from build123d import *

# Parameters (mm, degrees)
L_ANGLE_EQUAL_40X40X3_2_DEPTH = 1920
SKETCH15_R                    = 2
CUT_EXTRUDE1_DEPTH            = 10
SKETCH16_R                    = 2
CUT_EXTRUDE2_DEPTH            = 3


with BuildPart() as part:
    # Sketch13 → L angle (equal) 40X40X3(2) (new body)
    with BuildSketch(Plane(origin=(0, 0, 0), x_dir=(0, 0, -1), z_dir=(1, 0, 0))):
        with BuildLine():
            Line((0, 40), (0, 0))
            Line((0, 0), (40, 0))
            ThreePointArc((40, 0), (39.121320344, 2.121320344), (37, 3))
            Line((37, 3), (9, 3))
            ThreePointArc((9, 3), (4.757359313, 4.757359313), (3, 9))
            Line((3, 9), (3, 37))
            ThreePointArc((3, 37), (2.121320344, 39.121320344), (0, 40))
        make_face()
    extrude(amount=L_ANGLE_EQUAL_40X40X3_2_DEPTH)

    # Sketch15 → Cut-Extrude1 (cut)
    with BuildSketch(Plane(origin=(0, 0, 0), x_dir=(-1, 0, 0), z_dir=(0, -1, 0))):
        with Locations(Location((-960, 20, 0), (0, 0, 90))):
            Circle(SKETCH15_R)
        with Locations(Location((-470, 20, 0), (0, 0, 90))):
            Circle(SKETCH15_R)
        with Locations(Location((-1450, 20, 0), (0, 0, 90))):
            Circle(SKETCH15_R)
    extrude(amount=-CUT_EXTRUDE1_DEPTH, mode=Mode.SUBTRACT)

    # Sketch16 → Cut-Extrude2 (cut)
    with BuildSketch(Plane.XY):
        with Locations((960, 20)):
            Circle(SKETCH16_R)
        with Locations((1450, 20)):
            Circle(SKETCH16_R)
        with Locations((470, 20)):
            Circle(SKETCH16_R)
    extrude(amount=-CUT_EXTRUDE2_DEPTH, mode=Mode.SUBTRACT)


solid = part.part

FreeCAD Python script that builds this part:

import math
import FreeCAD as App
import Part
import Sketcher

V = App.Vector
Q = App.Units.Quantity

doc = App.newDocument("Part")
body = doc.addObject("PartDesign::Body", "Body")

# Sketch on YZ plane
sketch1 = body.newObject("Sketcher::SketchObject", "Sketch")
sketch1.AttachmentSupport = (doc.getObject("YZ_Plane"), [""])
sketch1.MapMode = "FlatFace"
sketch1.addGeometry([
    Part.LineSegment(V(40, 0, 0), V(0, 0, 0)),  # 0
    Part.LineSegment(V(0, 0, 0), V(0, -40, 0)),  # 1
    Part.ArcOfCircle(Part.Circle(V(0, -37, 0), V(0, 0, 1), 3), math.radians(-90), math.radians(0)),  # 2
    Part.LineSegment(V(3, -37, 0), V(3, -9, 0)),  # 3
    Part.ArcOfCircle(Part.Circle(V(9, -9, 0), V(0, 0, 1), 6), math.radians(90), math.radians(180)),  # 4
    Part.LineSegment(V(9, -3, 0), V(37, -3, 0)),  # 5
    Part.ArcOfCircle(Part.Circle(V(37, 0, 0), V(0, 0, 1), 3), math.radians(-90), math.radians(0)),  # 6
], False)
sketch1.addConstraint([
    Sketcher.Constraint("Coincident", 0, 2, 1, 1),
    Sketcher.Constraint("Coincident", 1, 2, 2, 1),
    Sketcher.Constraint("Tangent", 2, 2, 3, 1),
    Sketcher.Constraint("Tangent", 3, 2, 4, 2),
    Sketcher.Constraint("Tangent", 4, 1, 5, 1),
    Sketcher.Constraint("Tangent", 5, 2, 6, 1),
    Sketcher.Constraint("Coincident", 6, 2, 0, 1),
    Sketcher.Constraint("Horizontal", 0),
    Sketcher.Constraint("Vertical", 1),
    Sketcher.Constraint("Vertical", 3),
    Sketcher.Constraint("Horizontal", 5),
    Sketcher.Constraint("Coincident", 0, 2, -1, 1),
    Sketcher.Constraint("Equal", 2, 6),
    Sketcher.Constraint("PointOnObject", 2, 3, -2),
    Sketcher.Constraint("PointOnObject", 6, 3, -1),
    Sketcher.Constraint("Equal", 0, 1),
    Sketcher.Constraint("Radius", 2, Q("3 mm")),
    Sketcher.Constraint("Radius", 4, Q("6 mm")),
    Sketcher.Constraint("DistanceX", 0, 2, 0, 1, Q("40 mm")),
])
pad1 = body.newObject("PartDesign::Pad", "Pad")
pad1.Profile = sketch1
pad1.Length = 1920

# Sketch on XZ plane
sketch2 = body.newObject("Sketcher::SketchObject", "Sketch001")
sketch2.AttachmentSupport = (doc.getObject("XZ_Plane"), [""])
sketch2.MapMode = "FlatFace"
sketch2.addGeometry([
    Part.Circle(V(960, -20, 0), V(0, 0, 1), 2),
    Part.Circle(V(470, -20, 0), V(0, 0, 1), 2),
    Part.Circle(V(1450, -20, 0), V(0, 0, 1), 2),
], False)
sketch2.addConstraint([
    Sketcher.Constraint("Equal", 0, 1),
    Sketcher.Constraint("Equal", 1, 2),
    Sketcher.Constraint("Horizontal", 0, 3, 1, 3),
    Sketcher.Constraint("Horizontal", 1, 3, 2, 3),
    Sketcher.Constraint("Diameter", 0, Q("4 mm")),
    Sketcher.Constraint("DistanceX", -1, 1, 0, 3, Q("960 mm")),
    Sketcher.Constraint("DistanceY", 0, 3, -1, 1, Q("20 mm")),
    Sketcher.Constraint("DistanceX", -1, 1, 1, 3, Q("470 mm")),
    Sketcher.Constraint("DistanceX", -1, 1, 2, 3, Q("1450 mm")),
])
pocket1 = body.newObject("PartDesign::Pocket", "Pocket")
pocket1.Profile = sketch2
pocket1.Length = 10

# Sketch on XY plane
sketch3 = body.newObject("Sketcher::SketchObject", "Sketch002")
sketch3.AttachmentSupport = (doc.getObject("XY_Plane"), [""])
sketch3.MapMode = "FlatFace"
sketch3.addGeometry([
    Part.Circle(V(960, 20, 0), V(0, 0, 1), 2),
    Part.Circle(V(1450, 20, 0), V(0, 0, 1), 2),
    Part.Circle(V(470, 20, 0), V(0, 0, 1), 2),
], False)
sketch3.addConstraint([
    Sketcher.Constraint("Equal", 0, 1),
    Sketcher.Constraint("Equal", 1, 2),
    Sketcher.Constraint("Horizontal", 0, 3, 1, 3),
    Sketcher.Constraint("Horizontal", 1, 3, 2, 3),
    Sketcher.Constraint("Diameter", 0, Q("4 mm")),
    Sketcher.Constraint("DistanceX", -1, 1, 0, 3, Q("960 mm")),
    Sketcher.Constraint("DistanceY", -1, 1, 0, 3, Q("20 mm")),
    Sketcher.Constraint("DistanceX", -1, 1, 1, 3, Q("1450 mm")),
    Sketcher.Constraint("DistanceX", -1, 1, 2, 3, Q("470 mm")),
])
pocket2 = body.newObject("PartDesign::Pocket", "Pocket001")
pocket2.Profile = sketch3
pocket2.Length = 3

doc.recompute()
